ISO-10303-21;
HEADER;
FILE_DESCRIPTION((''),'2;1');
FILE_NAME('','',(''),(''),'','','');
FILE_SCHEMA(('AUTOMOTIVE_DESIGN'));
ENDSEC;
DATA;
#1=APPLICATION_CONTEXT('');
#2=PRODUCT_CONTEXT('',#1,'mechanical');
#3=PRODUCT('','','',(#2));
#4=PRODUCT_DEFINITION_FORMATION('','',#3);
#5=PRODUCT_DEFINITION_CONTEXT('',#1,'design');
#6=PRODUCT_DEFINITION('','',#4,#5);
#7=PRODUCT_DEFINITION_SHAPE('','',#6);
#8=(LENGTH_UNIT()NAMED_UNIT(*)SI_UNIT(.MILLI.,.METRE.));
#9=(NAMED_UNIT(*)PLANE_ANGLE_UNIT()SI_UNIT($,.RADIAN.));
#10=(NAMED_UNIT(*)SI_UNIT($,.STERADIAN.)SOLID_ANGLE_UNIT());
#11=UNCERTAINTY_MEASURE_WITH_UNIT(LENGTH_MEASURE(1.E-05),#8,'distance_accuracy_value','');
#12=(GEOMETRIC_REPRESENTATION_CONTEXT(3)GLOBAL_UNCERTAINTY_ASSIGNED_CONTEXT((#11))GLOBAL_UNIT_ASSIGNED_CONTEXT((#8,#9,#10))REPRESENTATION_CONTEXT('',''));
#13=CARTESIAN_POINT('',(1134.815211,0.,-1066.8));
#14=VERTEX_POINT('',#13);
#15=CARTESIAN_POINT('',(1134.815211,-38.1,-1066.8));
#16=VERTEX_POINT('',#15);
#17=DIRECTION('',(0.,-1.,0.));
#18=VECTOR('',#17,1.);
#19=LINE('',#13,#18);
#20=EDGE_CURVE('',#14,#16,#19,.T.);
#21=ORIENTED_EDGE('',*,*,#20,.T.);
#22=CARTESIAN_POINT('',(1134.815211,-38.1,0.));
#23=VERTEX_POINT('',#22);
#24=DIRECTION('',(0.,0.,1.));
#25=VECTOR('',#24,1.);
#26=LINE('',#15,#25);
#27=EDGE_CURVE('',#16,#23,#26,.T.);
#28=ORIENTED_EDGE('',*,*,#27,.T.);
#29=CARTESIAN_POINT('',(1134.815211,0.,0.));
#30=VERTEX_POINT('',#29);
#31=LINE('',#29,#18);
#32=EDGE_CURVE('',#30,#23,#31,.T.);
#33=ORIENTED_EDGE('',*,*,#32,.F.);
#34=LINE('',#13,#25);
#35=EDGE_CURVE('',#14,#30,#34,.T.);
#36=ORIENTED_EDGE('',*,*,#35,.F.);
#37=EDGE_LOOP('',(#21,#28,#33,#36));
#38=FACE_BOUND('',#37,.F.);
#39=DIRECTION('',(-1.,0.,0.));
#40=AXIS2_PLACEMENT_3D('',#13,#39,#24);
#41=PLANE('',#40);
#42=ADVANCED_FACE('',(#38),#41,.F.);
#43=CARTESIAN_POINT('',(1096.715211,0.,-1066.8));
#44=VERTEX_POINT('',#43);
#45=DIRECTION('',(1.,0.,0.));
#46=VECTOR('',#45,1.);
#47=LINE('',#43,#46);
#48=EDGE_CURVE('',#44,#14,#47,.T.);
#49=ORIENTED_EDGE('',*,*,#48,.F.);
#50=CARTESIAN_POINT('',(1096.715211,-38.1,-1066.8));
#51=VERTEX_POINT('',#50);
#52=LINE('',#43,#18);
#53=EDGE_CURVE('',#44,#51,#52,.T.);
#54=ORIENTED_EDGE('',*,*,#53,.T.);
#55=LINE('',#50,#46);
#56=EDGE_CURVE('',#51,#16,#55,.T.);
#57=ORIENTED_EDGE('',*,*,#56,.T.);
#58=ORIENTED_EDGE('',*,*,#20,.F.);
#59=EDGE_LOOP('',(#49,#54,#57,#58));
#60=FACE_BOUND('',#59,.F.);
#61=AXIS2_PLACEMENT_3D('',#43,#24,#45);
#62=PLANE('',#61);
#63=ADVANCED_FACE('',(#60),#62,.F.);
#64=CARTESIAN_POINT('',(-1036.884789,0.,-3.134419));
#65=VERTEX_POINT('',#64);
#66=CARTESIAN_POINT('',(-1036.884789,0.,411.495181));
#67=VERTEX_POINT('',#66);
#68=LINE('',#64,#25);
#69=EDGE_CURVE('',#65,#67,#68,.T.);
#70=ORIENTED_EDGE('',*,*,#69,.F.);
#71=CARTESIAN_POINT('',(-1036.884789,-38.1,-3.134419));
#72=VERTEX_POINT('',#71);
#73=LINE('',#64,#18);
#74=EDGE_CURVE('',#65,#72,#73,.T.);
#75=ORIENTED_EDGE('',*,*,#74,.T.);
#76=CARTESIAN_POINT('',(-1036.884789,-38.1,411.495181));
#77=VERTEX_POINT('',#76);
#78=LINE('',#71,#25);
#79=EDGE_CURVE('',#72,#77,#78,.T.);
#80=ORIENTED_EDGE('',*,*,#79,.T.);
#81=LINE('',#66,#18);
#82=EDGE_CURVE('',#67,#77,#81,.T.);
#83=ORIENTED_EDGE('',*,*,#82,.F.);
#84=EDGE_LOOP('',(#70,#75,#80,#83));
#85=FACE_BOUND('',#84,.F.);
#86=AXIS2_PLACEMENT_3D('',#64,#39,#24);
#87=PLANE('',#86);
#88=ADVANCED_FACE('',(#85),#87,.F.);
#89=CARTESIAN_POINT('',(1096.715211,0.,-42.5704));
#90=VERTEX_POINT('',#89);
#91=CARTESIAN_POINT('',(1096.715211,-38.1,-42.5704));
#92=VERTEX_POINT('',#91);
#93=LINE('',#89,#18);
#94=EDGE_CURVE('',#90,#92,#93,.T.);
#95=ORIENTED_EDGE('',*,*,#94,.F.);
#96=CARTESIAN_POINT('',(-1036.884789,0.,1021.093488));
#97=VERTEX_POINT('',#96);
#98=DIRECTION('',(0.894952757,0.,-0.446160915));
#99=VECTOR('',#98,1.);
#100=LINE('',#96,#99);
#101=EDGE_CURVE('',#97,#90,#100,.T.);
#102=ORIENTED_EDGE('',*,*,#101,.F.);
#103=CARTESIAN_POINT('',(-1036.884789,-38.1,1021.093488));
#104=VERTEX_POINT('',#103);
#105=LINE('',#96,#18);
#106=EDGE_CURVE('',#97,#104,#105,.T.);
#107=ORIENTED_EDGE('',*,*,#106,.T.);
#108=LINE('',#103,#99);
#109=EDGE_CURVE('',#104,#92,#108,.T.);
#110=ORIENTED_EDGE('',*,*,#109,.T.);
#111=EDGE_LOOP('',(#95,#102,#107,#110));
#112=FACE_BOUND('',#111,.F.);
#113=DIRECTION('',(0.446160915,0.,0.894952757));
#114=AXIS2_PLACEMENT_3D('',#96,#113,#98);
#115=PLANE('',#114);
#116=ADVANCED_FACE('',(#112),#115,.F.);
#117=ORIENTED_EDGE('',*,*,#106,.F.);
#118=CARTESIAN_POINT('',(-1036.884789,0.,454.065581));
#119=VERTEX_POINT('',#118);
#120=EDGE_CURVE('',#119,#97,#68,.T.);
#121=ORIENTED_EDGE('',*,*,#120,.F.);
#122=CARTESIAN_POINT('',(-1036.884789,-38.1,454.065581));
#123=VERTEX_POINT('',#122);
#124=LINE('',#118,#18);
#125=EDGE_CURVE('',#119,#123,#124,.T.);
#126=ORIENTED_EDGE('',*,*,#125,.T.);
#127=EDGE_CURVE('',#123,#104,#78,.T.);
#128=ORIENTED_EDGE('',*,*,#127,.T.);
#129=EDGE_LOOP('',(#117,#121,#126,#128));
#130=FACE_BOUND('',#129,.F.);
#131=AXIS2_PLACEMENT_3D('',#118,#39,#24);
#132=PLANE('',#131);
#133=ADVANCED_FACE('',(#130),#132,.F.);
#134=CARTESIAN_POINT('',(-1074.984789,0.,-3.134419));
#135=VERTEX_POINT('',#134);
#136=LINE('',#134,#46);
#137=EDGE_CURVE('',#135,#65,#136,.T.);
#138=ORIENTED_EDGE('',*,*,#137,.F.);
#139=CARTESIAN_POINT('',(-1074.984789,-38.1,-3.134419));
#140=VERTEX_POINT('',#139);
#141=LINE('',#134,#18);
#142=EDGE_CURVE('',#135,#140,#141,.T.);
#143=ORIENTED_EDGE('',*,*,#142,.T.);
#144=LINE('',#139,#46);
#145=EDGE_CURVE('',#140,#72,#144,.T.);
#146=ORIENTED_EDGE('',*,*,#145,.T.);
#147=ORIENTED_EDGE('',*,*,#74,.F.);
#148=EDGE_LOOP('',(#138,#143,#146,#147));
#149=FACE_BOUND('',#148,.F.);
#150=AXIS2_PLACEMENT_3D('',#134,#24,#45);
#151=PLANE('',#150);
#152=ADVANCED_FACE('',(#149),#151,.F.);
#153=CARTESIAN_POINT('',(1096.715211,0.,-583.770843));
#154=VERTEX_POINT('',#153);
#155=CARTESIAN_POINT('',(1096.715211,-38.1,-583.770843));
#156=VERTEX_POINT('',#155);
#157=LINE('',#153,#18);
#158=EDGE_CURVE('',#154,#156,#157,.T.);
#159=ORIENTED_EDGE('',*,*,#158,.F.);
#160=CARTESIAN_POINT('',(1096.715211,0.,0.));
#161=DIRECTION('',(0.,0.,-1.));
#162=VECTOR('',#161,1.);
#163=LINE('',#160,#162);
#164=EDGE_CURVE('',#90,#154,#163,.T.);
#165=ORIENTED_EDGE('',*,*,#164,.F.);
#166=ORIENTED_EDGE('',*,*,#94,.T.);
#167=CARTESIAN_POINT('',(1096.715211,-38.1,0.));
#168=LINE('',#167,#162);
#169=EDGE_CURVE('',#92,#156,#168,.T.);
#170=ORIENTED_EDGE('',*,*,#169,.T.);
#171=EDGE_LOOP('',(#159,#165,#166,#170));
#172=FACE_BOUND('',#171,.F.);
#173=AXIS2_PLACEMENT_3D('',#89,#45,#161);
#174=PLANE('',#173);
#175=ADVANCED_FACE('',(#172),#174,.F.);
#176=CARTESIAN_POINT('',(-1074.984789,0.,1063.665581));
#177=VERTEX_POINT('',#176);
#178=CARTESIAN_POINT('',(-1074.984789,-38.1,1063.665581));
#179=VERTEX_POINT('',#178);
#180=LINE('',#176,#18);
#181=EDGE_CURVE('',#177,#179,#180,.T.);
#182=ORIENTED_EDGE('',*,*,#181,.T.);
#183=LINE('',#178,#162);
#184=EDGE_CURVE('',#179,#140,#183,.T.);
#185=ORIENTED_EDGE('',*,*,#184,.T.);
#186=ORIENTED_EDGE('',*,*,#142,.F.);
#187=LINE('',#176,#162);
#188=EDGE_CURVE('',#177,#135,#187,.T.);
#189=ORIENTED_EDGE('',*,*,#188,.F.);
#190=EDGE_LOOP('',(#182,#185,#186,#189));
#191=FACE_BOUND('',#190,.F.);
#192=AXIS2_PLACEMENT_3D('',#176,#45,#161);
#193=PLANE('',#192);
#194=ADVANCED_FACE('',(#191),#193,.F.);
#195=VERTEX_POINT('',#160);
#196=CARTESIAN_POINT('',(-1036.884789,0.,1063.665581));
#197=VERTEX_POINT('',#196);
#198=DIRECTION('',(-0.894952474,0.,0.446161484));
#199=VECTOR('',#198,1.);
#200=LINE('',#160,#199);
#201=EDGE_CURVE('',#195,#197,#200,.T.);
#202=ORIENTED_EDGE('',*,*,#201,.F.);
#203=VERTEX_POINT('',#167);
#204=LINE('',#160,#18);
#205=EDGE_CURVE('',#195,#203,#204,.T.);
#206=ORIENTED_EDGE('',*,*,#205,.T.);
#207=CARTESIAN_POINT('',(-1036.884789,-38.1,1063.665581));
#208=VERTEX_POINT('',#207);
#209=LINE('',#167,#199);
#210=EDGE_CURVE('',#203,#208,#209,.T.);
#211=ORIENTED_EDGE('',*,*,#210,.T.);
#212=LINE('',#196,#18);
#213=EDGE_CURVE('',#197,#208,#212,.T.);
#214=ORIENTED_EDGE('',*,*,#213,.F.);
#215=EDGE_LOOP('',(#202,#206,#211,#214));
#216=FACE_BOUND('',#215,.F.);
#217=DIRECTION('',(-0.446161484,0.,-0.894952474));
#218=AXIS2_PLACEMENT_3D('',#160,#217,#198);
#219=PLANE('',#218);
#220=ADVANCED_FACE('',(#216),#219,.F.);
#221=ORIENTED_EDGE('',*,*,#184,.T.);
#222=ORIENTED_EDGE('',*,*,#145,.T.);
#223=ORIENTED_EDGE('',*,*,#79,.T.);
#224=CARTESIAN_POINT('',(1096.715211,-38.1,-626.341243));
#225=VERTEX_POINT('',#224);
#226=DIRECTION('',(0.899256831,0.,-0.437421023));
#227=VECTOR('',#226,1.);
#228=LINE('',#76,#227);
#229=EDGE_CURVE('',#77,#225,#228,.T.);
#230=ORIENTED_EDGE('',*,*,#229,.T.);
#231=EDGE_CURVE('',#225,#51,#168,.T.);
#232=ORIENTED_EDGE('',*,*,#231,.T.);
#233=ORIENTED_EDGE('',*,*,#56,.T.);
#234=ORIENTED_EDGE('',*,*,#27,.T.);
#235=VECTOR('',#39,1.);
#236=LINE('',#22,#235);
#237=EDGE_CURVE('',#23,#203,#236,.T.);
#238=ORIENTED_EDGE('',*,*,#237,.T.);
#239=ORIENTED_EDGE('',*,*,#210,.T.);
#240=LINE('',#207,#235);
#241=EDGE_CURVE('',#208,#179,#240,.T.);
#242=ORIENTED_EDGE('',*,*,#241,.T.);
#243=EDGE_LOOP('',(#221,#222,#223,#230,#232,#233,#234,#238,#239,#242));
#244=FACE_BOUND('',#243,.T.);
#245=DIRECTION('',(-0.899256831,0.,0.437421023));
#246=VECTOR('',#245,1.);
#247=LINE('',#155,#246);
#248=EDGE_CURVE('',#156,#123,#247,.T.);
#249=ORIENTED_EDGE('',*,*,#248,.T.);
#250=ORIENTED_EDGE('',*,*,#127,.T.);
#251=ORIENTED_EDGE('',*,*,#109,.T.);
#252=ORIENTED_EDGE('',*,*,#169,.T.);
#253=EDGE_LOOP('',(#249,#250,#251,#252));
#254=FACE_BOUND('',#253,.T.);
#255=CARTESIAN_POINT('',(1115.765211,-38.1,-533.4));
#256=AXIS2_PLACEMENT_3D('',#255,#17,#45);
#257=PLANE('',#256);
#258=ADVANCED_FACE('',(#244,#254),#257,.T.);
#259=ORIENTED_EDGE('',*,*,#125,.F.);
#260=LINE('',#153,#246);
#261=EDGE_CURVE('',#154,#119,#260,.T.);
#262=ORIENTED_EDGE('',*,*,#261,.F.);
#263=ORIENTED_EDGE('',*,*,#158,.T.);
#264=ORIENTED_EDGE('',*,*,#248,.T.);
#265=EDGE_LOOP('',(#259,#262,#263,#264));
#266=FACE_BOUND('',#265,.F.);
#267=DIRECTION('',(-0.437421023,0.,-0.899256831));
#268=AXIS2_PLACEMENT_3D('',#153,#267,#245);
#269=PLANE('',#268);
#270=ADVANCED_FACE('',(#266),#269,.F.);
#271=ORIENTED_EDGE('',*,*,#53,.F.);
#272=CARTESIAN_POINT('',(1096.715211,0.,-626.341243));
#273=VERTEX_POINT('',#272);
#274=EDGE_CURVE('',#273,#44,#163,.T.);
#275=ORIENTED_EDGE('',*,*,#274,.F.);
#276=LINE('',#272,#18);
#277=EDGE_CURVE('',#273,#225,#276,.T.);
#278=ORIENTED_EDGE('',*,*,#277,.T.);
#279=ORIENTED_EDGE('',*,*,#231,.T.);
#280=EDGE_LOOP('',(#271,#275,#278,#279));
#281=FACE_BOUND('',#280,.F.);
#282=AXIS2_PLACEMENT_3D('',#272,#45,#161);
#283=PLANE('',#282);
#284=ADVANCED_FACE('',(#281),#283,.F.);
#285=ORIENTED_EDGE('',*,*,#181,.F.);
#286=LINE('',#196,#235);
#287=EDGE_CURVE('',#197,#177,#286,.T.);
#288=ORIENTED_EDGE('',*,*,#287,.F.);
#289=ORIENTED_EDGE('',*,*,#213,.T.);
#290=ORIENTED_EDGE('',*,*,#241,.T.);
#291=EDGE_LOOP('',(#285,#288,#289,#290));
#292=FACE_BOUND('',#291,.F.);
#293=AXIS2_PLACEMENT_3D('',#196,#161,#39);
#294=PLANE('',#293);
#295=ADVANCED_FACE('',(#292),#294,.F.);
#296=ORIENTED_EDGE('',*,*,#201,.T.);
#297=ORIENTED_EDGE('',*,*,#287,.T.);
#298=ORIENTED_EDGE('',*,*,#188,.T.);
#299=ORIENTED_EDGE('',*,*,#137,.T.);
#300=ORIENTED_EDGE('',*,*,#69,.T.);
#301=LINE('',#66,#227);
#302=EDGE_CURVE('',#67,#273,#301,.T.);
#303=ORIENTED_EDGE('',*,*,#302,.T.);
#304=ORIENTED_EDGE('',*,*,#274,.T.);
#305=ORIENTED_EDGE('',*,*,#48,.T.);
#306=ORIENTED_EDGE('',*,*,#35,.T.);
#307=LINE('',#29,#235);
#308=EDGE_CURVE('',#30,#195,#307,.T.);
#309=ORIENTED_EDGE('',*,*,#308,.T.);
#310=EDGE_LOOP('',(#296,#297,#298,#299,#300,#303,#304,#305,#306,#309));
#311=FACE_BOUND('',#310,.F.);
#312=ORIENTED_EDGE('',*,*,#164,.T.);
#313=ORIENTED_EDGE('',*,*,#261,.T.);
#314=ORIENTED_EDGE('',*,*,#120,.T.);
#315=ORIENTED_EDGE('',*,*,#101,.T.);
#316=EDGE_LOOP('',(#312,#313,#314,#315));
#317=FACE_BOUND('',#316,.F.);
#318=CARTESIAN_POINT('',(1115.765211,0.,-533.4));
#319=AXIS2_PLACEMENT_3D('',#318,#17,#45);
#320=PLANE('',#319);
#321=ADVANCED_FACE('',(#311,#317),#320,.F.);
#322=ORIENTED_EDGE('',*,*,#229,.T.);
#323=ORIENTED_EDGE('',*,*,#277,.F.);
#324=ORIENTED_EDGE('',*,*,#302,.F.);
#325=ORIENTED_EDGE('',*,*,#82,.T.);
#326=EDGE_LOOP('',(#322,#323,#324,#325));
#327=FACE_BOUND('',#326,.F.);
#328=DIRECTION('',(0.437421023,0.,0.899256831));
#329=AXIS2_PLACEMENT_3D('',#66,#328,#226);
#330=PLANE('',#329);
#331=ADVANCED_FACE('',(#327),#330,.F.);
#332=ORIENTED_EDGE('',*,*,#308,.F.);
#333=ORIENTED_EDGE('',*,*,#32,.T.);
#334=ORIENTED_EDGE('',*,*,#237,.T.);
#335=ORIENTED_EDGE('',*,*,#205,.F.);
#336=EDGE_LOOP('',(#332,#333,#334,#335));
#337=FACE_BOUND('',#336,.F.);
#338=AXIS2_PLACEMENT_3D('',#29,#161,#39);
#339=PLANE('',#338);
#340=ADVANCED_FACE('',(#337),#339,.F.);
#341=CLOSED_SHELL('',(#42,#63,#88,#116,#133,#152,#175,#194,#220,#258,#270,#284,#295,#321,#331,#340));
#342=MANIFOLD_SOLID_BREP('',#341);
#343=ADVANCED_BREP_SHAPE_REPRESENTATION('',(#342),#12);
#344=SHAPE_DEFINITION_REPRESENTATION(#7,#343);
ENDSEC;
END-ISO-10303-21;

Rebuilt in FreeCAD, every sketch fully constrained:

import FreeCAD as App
import Part
import Sketcher

V = App.Vector
Q = App.Units.Quantity


def add_polygon(sketch, points):
    """Adds a closed chain of lines whose ends are joined by coincident constraints."""
    first, n = sketch.GeometryCount, len(points)
    for a, b in zip(points, points[1:] + points[:1]):
        sketch.addGeometry(Part.LineSegment(App.Vector(*a, 0), App.Vector(*b, 0)), False)
    for i in range(n):
        sketch.addConstraint(Sketcher.Constraint("Coincident", first + i, 2, first + (i + 1) % n, 1))

doc = App.newDocument("Part")
body = doc.addObject("PartDesign::Body", "Body")

# Sketch on XZ plane
sketch1 = body.newObject("Sketcher::SketchObject", "Sketch")
sketch1.AttachmentSupport = (doc.getObject("XZ_Plane"), [""])
sketch1.MapMode = "FlatFace"
add_polygon(sketch1, [(1134.815211, 0), (1096.715211, 0), (-1036.884789, 1063.665581), (-1074.984789, 1063.665581), (-1074.984789, -3.134419), (-1036.884789, -3.134419), (-1036.884789, 411.495181), (1096.715211, -626.341243), (1096.715211, -1066.8), (1134.815211, -1066.8)])  # lines 0-9
add_polygon(sketch1, [(-1036.884789, 454.065581), (-1036.884789, 1021.093488), (1096.715211, -42.5704), (1096.715211, -583.770843)])  # lines 10-13
sketch1.addConstraint([
    Sketcher.Constraint("Horizontal", 0),
    Sketcher.Constraint("Horizontal", 2),
    Sketcher.Constraint("Vertical", 3),
    Sketcher.Constraint("Horizontal", 4),
    Sketcher.Constraint("Vertical", 5),
    Sketcher.Constraint("Vertical", 7),
    Sketcher.Constraint("Horizontal", 8),
    Sketcher.Constraint("Vertical", 9),
    Sketcher.Constraint("Vertical", 10),
    Sketcher.Constraint("Vertical", 12),
    Sketcher.Constraint("PointOnObject", 0, 2, -1),
    Sketcher.Constraint("DistanceY", 3, 2, 3, 1, Q("42 in")),
    Sketcher.Constraint("DistanceY", 9, 1, 9, 2, Q("42 in")),
    Sketcher.Constraint("DistanceX", 0, 2, 0, 1, Q("1.5 in")),
    Sketcher.Constraint("DistanceX", 2, 2, 2, 1, Q("1.5 in")),
    Sketcher.Constraint("DistanceX", 4, 1, 4, 2, Q("1.5 in")),
    Sketcher.Constraint("DistanceX", 8, 1, 8, 2, Q("1.5 in")),
    Sketcher.Constraint("DistanceX", 1, 2, 0, 2, Q("84 in")),
    Sketcher.Constraint("DistanceY", 4, 2, 13, 2, Q("18 in")),
    Sketcher.Constraint("DistanceX", 2, 2, 10, 2, Q("1.5 in")),
    Sketcher.Constraint("DistanceX", 11, 2, 9, 2, Q("1.5 in")),
    Sketcher.Constraint("DistanceY", 5, 1, 5, 2, Q("16.324 in")),
    Sketcher.Constraint("DistanceY", 11, 2, -1, 1, Q("1.676 in")),
    Sketcher.Constraint("DistanceY", 6, 2, 12, 2, Q("1.676 in")),
    Sketcher.Constraint("DistanceY", 7, 2, 7, 1, Q("440.458757 mm")),
    Sketcher.Constraint("DistanceY", 10, 1, 10, 2, Q("567.027907 mm")),
    Sketcher.Constraint("DistanceX", -1, 1, 0, 2, Q("1096.715211 mm")),
    Sketcher.Constraint("DistanceY", -1, 1, 1, 2, Q("1063.665581 mm")),
])
pad1 = body.newObject("PartDesign::Pad", "Pad")
pad1.Profile = sketch1
pad1.Length = Q("1.5 in")

doc.recompute()
